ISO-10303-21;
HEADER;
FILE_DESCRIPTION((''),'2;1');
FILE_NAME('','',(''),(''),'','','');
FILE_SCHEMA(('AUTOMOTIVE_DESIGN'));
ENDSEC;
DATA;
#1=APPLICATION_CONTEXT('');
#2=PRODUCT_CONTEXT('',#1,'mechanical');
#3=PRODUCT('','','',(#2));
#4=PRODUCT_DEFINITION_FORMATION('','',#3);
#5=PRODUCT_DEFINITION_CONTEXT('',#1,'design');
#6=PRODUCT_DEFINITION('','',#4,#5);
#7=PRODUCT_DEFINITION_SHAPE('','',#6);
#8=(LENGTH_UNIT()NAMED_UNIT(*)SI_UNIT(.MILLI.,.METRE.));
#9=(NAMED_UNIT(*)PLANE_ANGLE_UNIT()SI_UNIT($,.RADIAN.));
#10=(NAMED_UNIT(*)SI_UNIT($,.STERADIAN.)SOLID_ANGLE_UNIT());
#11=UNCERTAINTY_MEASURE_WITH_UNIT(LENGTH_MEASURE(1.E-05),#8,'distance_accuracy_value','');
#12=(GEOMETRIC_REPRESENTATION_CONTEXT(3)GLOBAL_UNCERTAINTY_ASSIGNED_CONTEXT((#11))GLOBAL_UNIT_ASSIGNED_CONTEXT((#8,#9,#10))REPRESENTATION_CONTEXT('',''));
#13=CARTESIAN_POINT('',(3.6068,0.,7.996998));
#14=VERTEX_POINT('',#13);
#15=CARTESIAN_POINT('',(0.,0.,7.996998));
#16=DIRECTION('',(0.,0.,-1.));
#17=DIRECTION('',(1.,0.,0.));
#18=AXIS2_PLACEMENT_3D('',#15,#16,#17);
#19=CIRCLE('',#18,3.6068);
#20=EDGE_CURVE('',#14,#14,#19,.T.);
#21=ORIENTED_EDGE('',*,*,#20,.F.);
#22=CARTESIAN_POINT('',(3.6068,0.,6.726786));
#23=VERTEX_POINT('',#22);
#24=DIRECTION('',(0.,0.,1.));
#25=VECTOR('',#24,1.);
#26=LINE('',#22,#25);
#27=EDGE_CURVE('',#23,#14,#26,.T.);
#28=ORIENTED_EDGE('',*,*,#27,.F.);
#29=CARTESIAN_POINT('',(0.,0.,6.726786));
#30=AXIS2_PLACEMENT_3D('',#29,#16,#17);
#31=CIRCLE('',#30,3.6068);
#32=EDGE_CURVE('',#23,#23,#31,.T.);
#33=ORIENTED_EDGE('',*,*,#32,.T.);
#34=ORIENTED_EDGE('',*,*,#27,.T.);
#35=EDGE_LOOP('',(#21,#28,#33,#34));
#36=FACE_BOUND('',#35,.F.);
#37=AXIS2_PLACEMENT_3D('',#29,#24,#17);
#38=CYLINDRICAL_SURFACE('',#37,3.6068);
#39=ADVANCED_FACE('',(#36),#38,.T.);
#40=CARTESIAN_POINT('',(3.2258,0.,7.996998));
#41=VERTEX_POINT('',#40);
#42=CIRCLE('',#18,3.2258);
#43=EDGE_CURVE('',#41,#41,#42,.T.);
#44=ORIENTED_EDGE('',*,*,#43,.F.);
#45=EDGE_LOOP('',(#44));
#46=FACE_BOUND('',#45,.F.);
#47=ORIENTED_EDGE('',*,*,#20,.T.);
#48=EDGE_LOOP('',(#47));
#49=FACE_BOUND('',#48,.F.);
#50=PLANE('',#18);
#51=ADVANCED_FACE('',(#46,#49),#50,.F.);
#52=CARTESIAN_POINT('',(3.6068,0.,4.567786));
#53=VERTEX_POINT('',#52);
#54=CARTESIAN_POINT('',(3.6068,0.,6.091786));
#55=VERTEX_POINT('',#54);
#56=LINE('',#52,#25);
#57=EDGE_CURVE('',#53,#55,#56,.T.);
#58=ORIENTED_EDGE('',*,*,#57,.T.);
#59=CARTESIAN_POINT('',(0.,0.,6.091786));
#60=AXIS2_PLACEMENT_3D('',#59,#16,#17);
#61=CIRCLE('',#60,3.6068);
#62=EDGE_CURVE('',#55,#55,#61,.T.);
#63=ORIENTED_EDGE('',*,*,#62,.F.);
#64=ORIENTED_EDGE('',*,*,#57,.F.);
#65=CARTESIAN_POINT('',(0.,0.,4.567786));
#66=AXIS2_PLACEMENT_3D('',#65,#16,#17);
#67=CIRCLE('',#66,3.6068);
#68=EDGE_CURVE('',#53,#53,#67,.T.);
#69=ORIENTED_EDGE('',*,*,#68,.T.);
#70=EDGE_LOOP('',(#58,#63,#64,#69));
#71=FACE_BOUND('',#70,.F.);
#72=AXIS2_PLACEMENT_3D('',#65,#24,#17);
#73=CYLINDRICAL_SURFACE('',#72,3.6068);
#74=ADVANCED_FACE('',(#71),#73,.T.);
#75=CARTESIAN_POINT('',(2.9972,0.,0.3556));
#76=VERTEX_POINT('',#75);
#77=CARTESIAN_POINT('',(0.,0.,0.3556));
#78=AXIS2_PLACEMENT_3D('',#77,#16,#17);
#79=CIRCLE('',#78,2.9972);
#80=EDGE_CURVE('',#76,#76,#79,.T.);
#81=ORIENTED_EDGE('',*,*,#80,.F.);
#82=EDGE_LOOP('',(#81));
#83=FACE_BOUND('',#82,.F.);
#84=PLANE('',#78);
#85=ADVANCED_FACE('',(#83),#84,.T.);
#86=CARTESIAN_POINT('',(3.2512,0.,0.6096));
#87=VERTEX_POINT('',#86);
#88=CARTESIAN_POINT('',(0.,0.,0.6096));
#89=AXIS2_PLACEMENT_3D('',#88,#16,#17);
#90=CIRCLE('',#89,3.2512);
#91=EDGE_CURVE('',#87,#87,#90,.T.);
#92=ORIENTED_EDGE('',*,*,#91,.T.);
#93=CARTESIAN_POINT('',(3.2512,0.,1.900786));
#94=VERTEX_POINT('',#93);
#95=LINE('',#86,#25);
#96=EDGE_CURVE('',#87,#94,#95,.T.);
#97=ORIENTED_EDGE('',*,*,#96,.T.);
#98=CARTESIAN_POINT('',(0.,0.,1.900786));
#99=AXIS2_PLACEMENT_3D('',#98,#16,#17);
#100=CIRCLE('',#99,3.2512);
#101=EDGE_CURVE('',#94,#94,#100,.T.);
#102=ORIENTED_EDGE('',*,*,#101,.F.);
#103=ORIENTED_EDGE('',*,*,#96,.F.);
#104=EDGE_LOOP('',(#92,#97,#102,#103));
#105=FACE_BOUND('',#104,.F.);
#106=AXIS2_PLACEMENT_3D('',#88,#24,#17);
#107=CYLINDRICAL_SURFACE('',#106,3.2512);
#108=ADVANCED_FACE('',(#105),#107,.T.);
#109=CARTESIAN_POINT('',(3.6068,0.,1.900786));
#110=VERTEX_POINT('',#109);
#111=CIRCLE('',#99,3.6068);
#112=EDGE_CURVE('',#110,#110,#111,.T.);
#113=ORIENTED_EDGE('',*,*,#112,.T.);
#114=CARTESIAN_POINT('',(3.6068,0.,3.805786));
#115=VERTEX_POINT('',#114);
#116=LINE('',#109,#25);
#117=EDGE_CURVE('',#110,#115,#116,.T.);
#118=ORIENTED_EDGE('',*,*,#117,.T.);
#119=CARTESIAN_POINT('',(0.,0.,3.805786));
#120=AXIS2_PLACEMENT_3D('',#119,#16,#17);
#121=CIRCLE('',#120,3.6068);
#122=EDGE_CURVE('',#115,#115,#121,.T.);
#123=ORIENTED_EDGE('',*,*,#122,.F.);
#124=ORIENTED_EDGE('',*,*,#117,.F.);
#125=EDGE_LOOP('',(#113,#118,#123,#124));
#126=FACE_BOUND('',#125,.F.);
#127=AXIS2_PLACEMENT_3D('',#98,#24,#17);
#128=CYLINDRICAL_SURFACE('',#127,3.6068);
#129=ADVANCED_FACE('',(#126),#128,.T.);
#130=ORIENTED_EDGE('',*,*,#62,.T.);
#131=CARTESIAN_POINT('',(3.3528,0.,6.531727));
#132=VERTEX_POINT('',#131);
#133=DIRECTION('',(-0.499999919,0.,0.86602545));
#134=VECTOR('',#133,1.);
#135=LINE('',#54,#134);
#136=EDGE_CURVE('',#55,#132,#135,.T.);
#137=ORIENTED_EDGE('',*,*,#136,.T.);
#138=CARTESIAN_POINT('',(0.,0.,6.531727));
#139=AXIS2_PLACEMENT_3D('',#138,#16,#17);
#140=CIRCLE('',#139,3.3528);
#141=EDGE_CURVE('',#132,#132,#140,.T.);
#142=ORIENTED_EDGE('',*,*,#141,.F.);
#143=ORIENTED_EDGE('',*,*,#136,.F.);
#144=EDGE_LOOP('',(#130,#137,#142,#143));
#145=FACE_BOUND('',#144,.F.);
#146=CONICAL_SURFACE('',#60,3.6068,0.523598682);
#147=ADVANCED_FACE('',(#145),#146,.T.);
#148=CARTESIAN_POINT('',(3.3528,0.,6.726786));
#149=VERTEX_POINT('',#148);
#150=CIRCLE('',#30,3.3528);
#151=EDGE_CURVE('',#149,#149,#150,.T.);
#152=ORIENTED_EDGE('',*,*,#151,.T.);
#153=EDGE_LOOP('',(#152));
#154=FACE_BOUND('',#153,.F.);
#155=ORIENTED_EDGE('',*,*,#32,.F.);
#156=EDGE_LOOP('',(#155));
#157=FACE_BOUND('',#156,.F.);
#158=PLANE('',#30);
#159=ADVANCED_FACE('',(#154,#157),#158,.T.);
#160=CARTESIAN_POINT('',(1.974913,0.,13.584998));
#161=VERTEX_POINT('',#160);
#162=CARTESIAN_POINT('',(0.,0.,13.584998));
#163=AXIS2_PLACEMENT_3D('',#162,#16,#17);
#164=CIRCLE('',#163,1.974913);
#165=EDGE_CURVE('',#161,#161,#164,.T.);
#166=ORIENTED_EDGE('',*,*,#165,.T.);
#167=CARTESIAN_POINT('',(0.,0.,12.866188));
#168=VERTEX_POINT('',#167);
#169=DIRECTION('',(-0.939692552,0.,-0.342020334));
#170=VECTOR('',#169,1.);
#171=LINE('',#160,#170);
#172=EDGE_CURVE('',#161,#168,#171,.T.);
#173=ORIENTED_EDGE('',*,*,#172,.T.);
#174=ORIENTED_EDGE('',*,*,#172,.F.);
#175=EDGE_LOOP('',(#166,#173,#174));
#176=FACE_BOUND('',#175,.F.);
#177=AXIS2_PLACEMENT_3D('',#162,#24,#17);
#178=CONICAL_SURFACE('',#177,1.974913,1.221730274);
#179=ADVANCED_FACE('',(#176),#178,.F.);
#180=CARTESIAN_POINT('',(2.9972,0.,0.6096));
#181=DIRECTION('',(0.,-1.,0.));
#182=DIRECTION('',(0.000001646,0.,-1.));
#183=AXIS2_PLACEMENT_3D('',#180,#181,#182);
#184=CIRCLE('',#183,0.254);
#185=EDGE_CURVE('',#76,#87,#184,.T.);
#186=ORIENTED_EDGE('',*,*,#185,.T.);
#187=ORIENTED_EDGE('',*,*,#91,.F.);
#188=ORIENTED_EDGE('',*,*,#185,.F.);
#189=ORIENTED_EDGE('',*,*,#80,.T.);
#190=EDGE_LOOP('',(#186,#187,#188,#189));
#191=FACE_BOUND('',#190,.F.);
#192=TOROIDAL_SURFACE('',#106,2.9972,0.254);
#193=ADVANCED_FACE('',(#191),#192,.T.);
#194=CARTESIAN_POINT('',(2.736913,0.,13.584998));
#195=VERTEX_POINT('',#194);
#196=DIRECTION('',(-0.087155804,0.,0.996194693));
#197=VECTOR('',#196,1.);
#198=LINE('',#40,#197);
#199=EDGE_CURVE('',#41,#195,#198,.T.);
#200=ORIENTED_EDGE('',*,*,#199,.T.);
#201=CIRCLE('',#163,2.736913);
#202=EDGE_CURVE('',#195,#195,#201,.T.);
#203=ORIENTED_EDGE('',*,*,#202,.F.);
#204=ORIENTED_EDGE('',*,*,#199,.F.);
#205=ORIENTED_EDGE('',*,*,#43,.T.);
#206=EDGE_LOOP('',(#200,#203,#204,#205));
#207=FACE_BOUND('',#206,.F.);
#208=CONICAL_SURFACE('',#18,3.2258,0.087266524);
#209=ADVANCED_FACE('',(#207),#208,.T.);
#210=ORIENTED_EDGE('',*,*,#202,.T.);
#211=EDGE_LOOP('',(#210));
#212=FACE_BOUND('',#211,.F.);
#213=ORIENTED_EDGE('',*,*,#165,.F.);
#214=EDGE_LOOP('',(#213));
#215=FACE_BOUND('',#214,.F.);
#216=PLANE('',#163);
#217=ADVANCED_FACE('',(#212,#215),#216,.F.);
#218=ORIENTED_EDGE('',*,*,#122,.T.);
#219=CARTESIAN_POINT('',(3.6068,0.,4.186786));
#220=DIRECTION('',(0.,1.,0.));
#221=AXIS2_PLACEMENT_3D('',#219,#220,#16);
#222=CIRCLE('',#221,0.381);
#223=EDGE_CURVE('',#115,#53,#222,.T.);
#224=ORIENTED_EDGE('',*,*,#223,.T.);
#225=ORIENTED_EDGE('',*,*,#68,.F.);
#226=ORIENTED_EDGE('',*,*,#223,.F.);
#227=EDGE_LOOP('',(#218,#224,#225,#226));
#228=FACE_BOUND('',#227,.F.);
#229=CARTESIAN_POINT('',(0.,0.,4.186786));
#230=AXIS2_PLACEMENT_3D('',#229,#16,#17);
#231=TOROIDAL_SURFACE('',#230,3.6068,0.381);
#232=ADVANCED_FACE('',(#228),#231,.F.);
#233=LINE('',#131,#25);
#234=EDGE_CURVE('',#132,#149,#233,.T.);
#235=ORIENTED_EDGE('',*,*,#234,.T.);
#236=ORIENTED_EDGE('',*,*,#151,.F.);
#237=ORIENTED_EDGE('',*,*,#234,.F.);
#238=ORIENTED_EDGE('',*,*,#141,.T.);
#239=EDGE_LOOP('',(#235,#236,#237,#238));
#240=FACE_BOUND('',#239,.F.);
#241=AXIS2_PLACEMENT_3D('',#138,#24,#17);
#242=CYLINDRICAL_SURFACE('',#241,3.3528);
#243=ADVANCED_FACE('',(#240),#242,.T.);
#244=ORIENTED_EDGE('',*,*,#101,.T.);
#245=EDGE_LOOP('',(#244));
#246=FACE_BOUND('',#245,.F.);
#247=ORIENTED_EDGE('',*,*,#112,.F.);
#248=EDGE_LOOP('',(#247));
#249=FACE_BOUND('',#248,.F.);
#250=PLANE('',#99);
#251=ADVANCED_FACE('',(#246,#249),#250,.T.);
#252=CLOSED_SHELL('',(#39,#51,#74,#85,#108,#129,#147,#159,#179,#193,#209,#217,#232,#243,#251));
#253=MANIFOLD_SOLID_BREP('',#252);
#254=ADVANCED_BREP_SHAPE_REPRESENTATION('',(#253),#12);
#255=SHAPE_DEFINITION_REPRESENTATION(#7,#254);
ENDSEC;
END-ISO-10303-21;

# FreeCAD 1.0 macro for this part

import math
import FreeCAD as App
import Part
import Sketcher
Q = App.Units.Quantity

doc = App.newDocument("Part")
body = doc.addObject("PartDesign::Body", "Body")

# Sketch on XZ plane
sketch1 = body.newObject("Sketcher::SketchObject", "Sketch")
sketch1.AttachmentSupport = (doc.getObject("XZ_Plane"), [""])
sketch1.MapMode = "FlatFace"
sketch1.addGeometry([
    Part.LineSegment(App.Vector(3.61, 8, 0), App.Vector(3.23, 8, 0)),  # 0
    Part.LineSegment(App.Vector(3.23, 8, 0), App.Vector(2.74, 13.58, 0)),  # 1
    Part.LineSegment(App.Vector(2.74, 13.58, 0), App.Vector(1.97, 13.58, 0)),  # 2
    Part.LineSegment(App.Vector(1.97, 13.58, 0), App.Vector(0, 12.87, 0)),  # 3
    Part.LineSegment(App.Vector(0, 12.87, 0), App.Vector(0, 0.36, 0)),  # 4
    Part.LineSegment(App.Vector(0, 0.36, 0), App.Vector(3, 0.36, 0)),  # 5
    Part.ArcOfCircle(Part.Circle(App.Vector(3, 0.61, 0), App.Vector(0, 0, 1), 0.25), math.radians(-90), math.radians(0)),  # 6
    Part.LineSegment(App.Vector(3.25, 0.61, 0), App.Vector(3.25, 1.9, 0)),  # 7
    Part.LineSegment(App.Vector(3.25, 1.9, 0), App.Vector(3.61, 1.9, 0)),  # 8
    Part.LineSegment(App.Vector(3.61, 1.9, 0), App.Vector(3.61, 3.81, 0)),  # 9
    Part.ArcOfCircle(Part.Circle(App.Vector(3.61, 4.19, 0), App.Vector(0, 0, 1), 0.38), math.radians(90), math.radians(270)),  # 10
    Part.LineSegment(App.Vector(3.61, 4.57, 0), App.Vector(3.61, 6.09, 0)),  # 11
    Part.LineSegment(App.Vector(3.61, 6.09, 0), App.Vector(3.35, 6.53, 0)),  # 12
    Part.LineSegment(App.Vector(3.35, 6.53, 0), App.Vector(3.35, 6.73, 0)),  # 13
    Part.LineSegment(App.Vector(3.35, 6.73, 0), App.Vector(3.61, 6.73, 0)),  # 14
    Part.LineSegment(App.Vector(3.61, 6.73, 0), App.Vector(3.61, 8, 0)),  # 15
], False)
sketch1.addConstraint([
    Sketcher.Constraint("Coincident", 0, 2, 1, 1),
    Sketcher.Constraint("Coincident", 1, 2, 2, 1),
    Sketcher.Constraint("Coincident", 2, 2, 3, 1),
    Sketcher.Constraint("Coincident", 3, 2, 4, 1),
    Sketcher.Constraint("Coincident", 4, 2, 5, 1),
    Sketcher.Constraint("Tangent", 5, 2, 6, 1),
    Sketcher.Constraint("Tangent", 6, 2, 7, 1),
    Sketcher.Constraint("Coincident", 7, 2, 8, 1),
    Sketcher.Constraint("Coincident", 8, 2, 9, 1),
    Sketcher.Constraint("Coincident", 9, 2, 10, 2),
    Sketcher.Constraint("Coincident", 10, 1, 11, 1),
    Sketcher.Constraint("Coincident", 11, 2, 12, 1),
    Sketcher.Constraint("Coincident", 12, 2, 13, 1),
    Sketcher.Constraint("Coincident", 13, 2, 14, 1),
    Sketcher.Constraint("Coincident", 14, 2, 15, 1),
    Sketcher.Constraint("Coincident", 15, 2, 0, 1),
    Sketcher.Constraint("Horizontal", 0),
    Sketcher.Constraint("Horizontal", 2),
    Sketcher.Constraint("Vertical", 4),
    Sketcher.Constraint("Horizontal", 5),
    Sketcher.Constraint("Vertical", 7),
    Sketcher.Constraint("Horizontal", 8),
    Sketcher.Constraint("Vertical", 9),
    Sketcher.Constraint("Vertical", 11),
    Sketcher.Constraint("Vertical", 13),
    Sketcher.Constraint("Horizontal", 14),
    Sketcher.Constraint("Vertical", 15),
    Sketcher.Constraint("PointOnObject", 3, 2, -2),
    Sketcher.Constraint("Vertical", 10, 3, 8, 2),
    Sketcher.Constraint("Vertical", 9, 2, 10, 1),
    Sketcher.Constraint("Vertical", 11, 2, 14, 2),
    Sketcher.Constraint("Radius", 6, Q("0.01 in")),
    Sketcher.Constraint("Angle", 1, Q("95.000004 deg")),
    Sketcher.Constraint("Angle", 3, Q("-159.999988 deg")),
    Sketcher.Constraint("Angle", 12, Q("119.999995 deg")),
    Sketcher.Constraint("Radius", 10, Q("0.015 in")),
    Sketcher.Constraint("DistanceX", 2, 2, 2, 1, Q("0.03 in")),
    Sketcher.Constraint("DistanceX", 14, 1, 14, 2, Q("0.01 in")),
    Sketcher.Constraint("DistanceY", 11, 1, 11, 2, Q("0.06 in")),
    Sketcher.Constraint("DistanceY", 10, 3, 13, 2, Q("0.1 in")),
    Sketcher.Constraint("DistanceX", 0, 2, 0, 1, Q("0.015 in")),
    Sketcher.Constraint("DistanceX", 5, 1, 5, 2, Q("0.118 in")),
    Sketcher.Constraint("DistanceX", 8, 1, 8, 2, Q("0.014 in")),
    Sketcher.Constraint("DistanceY", 9, 1, 9, 2, Q("0.075 in")),
    Sketcher.Constraint("DistanceY", 0, 2, 1, 2, Q("0.22 in")),
    Sketcher.Constraint("DistanceY", -1, 1, 6, 3, Q("0.024 in")),
    Sketcher.Constraint("DistanceY", 15, 1, 15, 2, Q("1.270212 mm")),
    Sketcher.Constraint("DistanceY", 4, 2, 4, 1, Q("12.510588 mm")),
])
revolution = body.newObject("PartDesign::Revolution", "Revolution")
revolution.Profile = sketch1
revolution.ReferenceAxis = (sketch1, ["V_Axis"])
revolution.Angle = 360

doc.recompute()
